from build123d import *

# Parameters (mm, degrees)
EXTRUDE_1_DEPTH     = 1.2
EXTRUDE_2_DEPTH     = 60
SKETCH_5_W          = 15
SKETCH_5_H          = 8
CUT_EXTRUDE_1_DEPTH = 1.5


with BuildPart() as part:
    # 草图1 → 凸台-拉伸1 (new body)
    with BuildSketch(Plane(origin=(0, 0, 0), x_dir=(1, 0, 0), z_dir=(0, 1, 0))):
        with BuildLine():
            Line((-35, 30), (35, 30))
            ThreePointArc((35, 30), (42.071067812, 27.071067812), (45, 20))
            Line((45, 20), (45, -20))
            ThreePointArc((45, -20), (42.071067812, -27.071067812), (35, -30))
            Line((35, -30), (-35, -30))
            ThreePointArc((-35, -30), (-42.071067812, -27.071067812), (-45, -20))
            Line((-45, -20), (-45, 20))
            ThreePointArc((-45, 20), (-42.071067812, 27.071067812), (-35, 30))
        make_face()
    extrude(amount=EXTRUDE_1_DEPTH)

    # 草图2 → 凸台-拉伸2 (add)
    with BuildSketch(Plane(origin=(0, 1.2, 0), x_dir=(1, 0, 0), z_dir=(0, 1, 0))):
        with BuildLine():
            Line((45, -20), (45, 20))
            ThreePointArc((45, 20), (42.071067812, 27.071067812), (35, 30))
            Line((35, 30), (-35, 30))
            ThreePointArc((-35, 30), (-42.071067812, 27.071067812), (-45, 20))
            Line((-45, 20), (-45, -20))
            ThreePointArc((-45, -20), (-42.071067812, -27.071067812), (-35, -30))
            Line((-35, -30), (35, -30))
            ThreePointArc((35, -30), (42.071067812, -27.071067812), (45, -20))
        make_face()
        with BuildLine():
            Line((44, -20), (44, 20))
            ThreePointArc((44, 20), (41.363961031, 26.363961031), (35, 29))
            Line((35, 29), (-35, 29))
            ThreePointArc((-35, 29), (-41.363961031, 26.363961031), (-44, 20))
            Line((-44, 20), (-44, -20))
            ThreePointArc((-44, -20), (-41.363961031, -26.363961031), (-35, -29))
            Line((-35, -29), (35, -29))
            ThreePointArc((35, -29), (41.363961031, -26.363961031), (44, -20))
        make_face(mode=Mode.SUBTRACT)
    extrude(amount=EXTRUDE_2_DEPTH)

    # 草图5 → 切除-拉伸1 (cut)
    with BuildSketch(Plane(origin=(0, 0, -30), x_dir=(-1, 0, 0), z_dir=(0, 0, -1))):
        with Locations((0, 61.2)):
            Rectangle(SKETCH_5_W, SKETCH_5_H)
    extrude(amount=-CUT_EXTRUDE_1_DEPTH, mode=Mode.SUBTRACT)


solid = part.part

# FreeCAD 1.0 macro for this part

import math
import FreeCAD as App
import Part
import Sketcher
Q = App.Units.Quantity


def add_polygon(sketch, points):
    """Adds a closed chain of lines whose ends are joined by coincident constraints."""
    first, n = sketch.GeometryCount, len(points)
    for a, b in zip(points, points[1:] + points[:1]):
        sketch.addGeometry(Part.LineSegment(App.Vector(*a, 0), App.Vector(*b, 0)), False)
    for i in range(n):
        sketch.addConstraint(Sketcher.Constraint("Coincident", first + i, 2, first + (i + 1) % n, 1))

doc = App.newDocument("Part")
body = doc.addObject("PartDesign::Body", "Body")

# Sketch on XZ plane
sketch1 = body.newObject("Sketcher::SketchObject", "Sketch")
sketch1.AttachmentSupport = (doc.getObject("XZ_Plane"), [""])
sketch1.MapMode = "FlatFace"
sketch1.addGeometry([
    Part.LineSegment(App.Vector(35, -30, 0), App.Vector(-35, -30, 0)),  # 0
    Part.ArcOfCircle(Part.Circle(App.Vector(-35, -20, 0), App.Vector(0, 0, 1), 10), math.radians(180), math.radians(270)),  # 1
    Part.LineSegment(App.Vector(-45, -20, 0), App.Vector(-45, 20, 0)),  # 2
    Part.ArcOfCircle(Part.Circle(App.Vector(-35, 20, 0), App.Vector(0, 0, 1), 10), math.radians(90), math.radians(180)),  # 3
    Part.LineSegment(App.Vector(-35, 30, 0), App.Vector(35, 30, 0)),  # 4
    Part.ArcOfCircle(Part.Circle(App.Vector(35, 20, 0), App.Vector(0, 0, 1), 10), math.radians(0), math.radians(90)),  # 5
    Part.LineSegment(App.Vector(45, 20, 0), App.Vector(45, -20, 0)),  # 6
    Part.ArcOfCircle(Part.Circle(App.Vector(35, -20, 0), App.Vector(0, 0, 1), 10), math.radians(-90), math.radians(0)),  # 7
], False)
sketch1.addConstraint([
    Sketcher.Constraint("Tangent", 0, 2, 1, 2),
    Sketcher.Constraint("Tangent", 1, 1, 2, 1),
    Sketcher.Constraint("Tangent", 2, 2, 3, 2),
    Sketcher.Constraint("Tangent", 3, 1, 4, 1),
    Sketcher.Constraint("Tangent", 4, 2, 5, 2),
    Sketcher.Constraint("Tangent", 5, 1, 6, 1),
    Sketcher.Constraint("Tangent", 6, 2, 7, 2),
    Sketcher.Constraint("Tangent", 7, 1, 0, 1),
    Sketcher.Constraint("Horizontal", 0),
    Sketcher.Constraint("Vertical", 2),
    Sketcher.Constraint("Horizontal", 4),
    Sketcher.Constraint("Vertical", 6),
    Sketcher.Constraint("Equal", 1, 3),
    Sketcher.Constraint("Equal", 3, 5),
    Sketcher.Constraint("Equal", 5, 7),
    Sketcher.Constraint("Symmetric", 1, 3, 5, 3, -1, 1),
    Sketcher.Constraint("Radius", 1, Q("10 mm")),
    Sketcher.Constraint("DistanceX", 0, 2, 0, 1, Q("70 mm")),
    Sketcher.Constraint("DistanceY", 2, 1, 2, 2, Q("40 mm")),
])
pad1 = body.newObject("PartDesign::Pad", "Pad")
pad1.Profile = sketch1
pad1.Length = 1.2
pad1.Reversed = True

# Sketch on XZ plane
sketch2 = body.newObject("Sketcher::SketchObject", "Sketch001")
sketch2.AttachmentSupport = (doc.getObject("XZ_Plane"), [""])
sketch2.MapMode = "FlatFace"
sketch2.AttachmentOffset = App.Placement(App.Vector(0, 0, -1.2), App.Rotation())
sketch2.addGeometry([
    Part.LineSegment(App.Vector(45, 20, 0), App.Vector(45, -20, 0)),  # 0
    Part.ArcOfCircle(Part.Circle(App.Vector(35, -20, 0), App.Vector(0, 0, 1), 10), math.radians(-90), math.radians(0)),  # 1
    Part.LineSegment(App.Vector(35, -30, 0), App.Vector(-35, -30, 0)),  # 2
    Part.ArcOfCircle(Part.Circle(App.Vector(-35, -20, 0), App.Vector(0, 0, 1), 10), math.radians(180), math.radians(270)),  # 3
    Part.LineSegment(App.Vector(-45, -20, 0), App.Vector(-45, 20, 0)),  # 4
    Part.ArcOfCircle(Part.Circle(App.Vector(-35, 20, 0), App.Vector(0, 0, 1), 10), math.radians(90), math.radians(180)),  # 5
    Part.LineSegment(App.Vector(-35, 30, 0), App.Vector(35, 30, 0)),  # 6
    Part.ArcOfCircle(Part.Circle(App.Vector(35, 20, 0), App.Vector(0, 0, 1), 10), math.radians(0), math.radians(90)),  # 7
    Part.LineSegment(App.Vector(44, -20, 0), App.Vector(44, 20, 0)),  # 8
    Part.ArcOfCircle(Part.Circle(App.Vector(35, 20, 0), App.Vector(0, 0, 1), 9), math.radians(0), math.radians(90)),  # 9
    Part.LineSegment(App.Vector(35, 29, 0), App.Vector(-35, 29, 0)),  # 10
    Part.ArcOfCircle(Part.Circle(App.Vector(-35, 20, 0), App.Vector(0, 0, 1), 9), math.radians(90), math.radians(180)),  # 11
    Part.LineSegment(App.Vector(-44, 20, 0), App.Vector(-44, -20, 0)),  # 12
    Part.ArcOfCircle(Part.Circle(App.Vector(-35, -20, 0), App.Vector(0, 0, 1), 9), math.radians(180), math.radians(270)),  # 13
    Part.LineSegment(App.Vector(-35, -29, 0), App.Vector(35, -29, 0)),  # 14
    Part.ArcOfCircle(Part.Circle(App.Vector(35, -20, 0), App.Vector(0, 0, 1), 9), math.radians(-90), math.radians(0)),  # 15
], False)
sketch2.addConstraint([
    Sketcher.Constraint("Tangent", 0, 2, 1, 2),
    Sketcher.Constraint("Tangent", 1, 1, 2, 1),
    Sketcher.Constraint("Tangent", 2, 2, 3, 2),
    Sketcher.Constraint("Tangent", 3, 1, 4, 1),
    Sketcher.Constraint("Tangent", 4, 2, 5, 2),
    Sketcher.Constraint("Tangent", 5, 1, 6, 1),
    Sketcher.Constraint("Tangent", 6, 2, 7, 2),
    Sketcher.Constraint("Tangent", 7, 1, 0, 1),
    Sketcher.Constraint("Tangent", 8, 2, 9, 1),
    Sketcher.Constraint("Tangent", 9, 2, 10, 1),
    Sketcher.Constraint("Tangent", 10, 2, 11, 1),
    Sketcher.Constraint("Tangent", 11, 2, 12, 1),
    Sketcher.Constraint("Tangent", 12, 2, 13, 1),
    Sketcher.Constraint("Tangent", 13, 2, 14, 1),
    Sketcher.Constraint("Tangent", 14, 2, 15, 1),
    Sketcher.Constraint("Tangent", 15, 2, 8, 1),
    Sketcher.Constraint("Vertical", 0),
    Sketcher.Constraint("Horizontal", 2),
    Sketcher.Constraint("Vertical", 4),
    Sketcher.Constraint("Horizontal", 6),
    Sketcher.Constraint("Vertical", 8),
    Sketcher.Constraint("Horizontal", 10),
    Sketcher.Constraint("Vertical", 12),
    Sketcher.Constraint("Horizontal", 14),
    Sketcher.Constraint("Coincident", 9, 3, 7, 3),
    Sketcher.Constraint("Coincident", 11, 3, 5, 3),
    Sketcher.Constraint("Coincident", 13, 3, 3, 3),
    Sketcher.Constraint("Equal", 1, 3),
    Sketcher.Constraint("Equal", 3, 5),
    Sketcher.Constraint("Equal", 5, 7),
    Sketcher.Constraint("Equal", 13, 15),
    Sketcher.Constraint("Symmetric", 1, 3, 5, 3, -1, 1),
    Sketcher.Constraint("Radius", 1, Q("10 mm")),
    Sketcher.Constraint("Radius", 9, Q("9 mm")),
    Sketcher.Constraint("DistanceX", 2, 2, 2, 1, Q("70 mm")),
    Sketcher.Constraint("DistanceY", 0, 2, 0, 1, Q("40 mm")),
])
pad2 = body.newObject("PartDesign::Pad", "Pad001")
pad2.Profile = sketch2
pad2.Length = 60
pad2.Reversed = True

# Sketch on XY plane
sketch3 = body.newObject("Sketcher::SketchObject", "Sketch002")
sketch3.AttachmentSupport = (doc.getObject("XY_Plane"), [""])
sketch3.MapMode = "FlatFace"
sketch3.AttachmentOffset = App.Placement(App.Vector(0, 0, -30), App.Rotation())
add_polygon(sketch3, [(7.5, 65.2), (7.5, 57.2), (-7.5, 57.2), (-7.5, 65.2)])  # lines 0-3
sketch3.addConstraint([
    Sketcher.Constraint("Vertical", 0),
    Sketcher.Constraint("Horizontal", 1),
    Sketcher.Constraint("Vertical", 2),
    Sketcher.Constraint("Horizontal", 3),
    Sketcher.Constraint("DistanceX", 1, 2, 1, 1, Q("15 mm")),
    Sketcher.Constraint("DistanceY", 0, 2, 0, 1, Q("8 mm")),
    Sketcher.Constraint("DistanceX", -1, 1, 0, 2, Q("7.5 mm")),
    Sketcher.Constraint("DistanceY", -1, 1, 0, 2, Q("57.2 mm")),
])
pocket1 = body.newObject("PartDesign::Pocket", "Pocket")
pocket1.Profile = sketch3
pocket1.Length = 1.5
pocket1.Reversed = True

doc.recompute()
